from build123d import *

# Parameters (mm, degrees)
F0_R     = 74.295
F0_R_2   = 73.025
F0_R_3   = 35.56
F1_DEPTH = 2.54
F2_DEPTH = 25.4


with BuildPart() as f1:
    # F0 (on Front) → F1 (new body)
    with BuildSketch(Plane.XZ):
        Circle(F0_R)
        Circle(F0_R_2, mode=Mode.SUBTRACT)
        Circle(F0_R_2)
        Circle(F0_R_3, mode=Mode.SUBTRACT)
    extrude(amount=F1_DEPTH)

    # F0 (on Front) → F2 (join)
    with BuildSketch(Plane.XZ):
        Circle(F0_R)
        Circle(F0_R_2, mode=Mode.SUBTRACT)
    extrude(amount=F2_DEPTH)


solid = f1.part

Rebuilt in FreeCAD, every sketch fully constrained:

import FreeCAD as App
import Part
import Sketcher
from FreeCAD import Vector
Q = App.Units.Quantity

doc = App.newDocument("Part")
body = doc.addObject("PartDesign::Body", "Body")

sketch1 = body.newObject("Sketcher::SketchObject", "Sketch")
sketch1.AttachmentSupport = (doc.getObject("XZ_Plane"), [""])
sketch1.MapMode = "FlatFace"
sketch1.addGeometry([
    Part.Circle(Vector(0, 0, 0), Vector(0, 0, 1), 74),
    Part.Circle(Vector(0, 0, 0), Vector(0, 0, 1), 36),
], False)
sketch1.addConstraint([
    Sketcher.Constraint("Coincident", 0, 3, -1, 1),
    Sketcher.Constraint("Coincident", 1, 3, -1, 1),
    Sketcher.Constraint("Diameter", 1, Q("2.8 in")),
    Sketcher.Constraint("Diameter", 0, Q("5.85 in")),
])
pad1 = body.newObject("PartDesign::Pad", "Pad")
pad1.Profile = sketch1
pad1.Length = Q("0.1 in")

sketch2 = body.newObject("Sketcher::SketchObject", "Sketch001")
sketch2.AttachmentSupport = (doc.getObject("XZ_Plane"), [""])
sketch2.MapMode = "FlatFace"
sketch2.addGeometry([
    Part.Circle(Vector(0, 0, 0), Vector(0, 0, 1), 74),
    Part.Circle(Vector(0, 0, 0), Vector(0, 0, 1), 73),
], False)
sketch2.addConstraint([
    Sketcher.Constraint("Coincident", 0, 3, -1, 1),
    Sketcher.Constraint("Coincident", 1, 3, -1, 1),
    Sketcher.Constraint("Diameter", 0, Q("5.85 in")),
    Sketcher.Constraint("Diameter", 1, Q("5.75 in")),
])
pad2 = body.newObject("PartDesign::Pad", "Pad001")
pad2.Profile = sketch2
pad2.Length = Q("1 in")

doc.recompute()
